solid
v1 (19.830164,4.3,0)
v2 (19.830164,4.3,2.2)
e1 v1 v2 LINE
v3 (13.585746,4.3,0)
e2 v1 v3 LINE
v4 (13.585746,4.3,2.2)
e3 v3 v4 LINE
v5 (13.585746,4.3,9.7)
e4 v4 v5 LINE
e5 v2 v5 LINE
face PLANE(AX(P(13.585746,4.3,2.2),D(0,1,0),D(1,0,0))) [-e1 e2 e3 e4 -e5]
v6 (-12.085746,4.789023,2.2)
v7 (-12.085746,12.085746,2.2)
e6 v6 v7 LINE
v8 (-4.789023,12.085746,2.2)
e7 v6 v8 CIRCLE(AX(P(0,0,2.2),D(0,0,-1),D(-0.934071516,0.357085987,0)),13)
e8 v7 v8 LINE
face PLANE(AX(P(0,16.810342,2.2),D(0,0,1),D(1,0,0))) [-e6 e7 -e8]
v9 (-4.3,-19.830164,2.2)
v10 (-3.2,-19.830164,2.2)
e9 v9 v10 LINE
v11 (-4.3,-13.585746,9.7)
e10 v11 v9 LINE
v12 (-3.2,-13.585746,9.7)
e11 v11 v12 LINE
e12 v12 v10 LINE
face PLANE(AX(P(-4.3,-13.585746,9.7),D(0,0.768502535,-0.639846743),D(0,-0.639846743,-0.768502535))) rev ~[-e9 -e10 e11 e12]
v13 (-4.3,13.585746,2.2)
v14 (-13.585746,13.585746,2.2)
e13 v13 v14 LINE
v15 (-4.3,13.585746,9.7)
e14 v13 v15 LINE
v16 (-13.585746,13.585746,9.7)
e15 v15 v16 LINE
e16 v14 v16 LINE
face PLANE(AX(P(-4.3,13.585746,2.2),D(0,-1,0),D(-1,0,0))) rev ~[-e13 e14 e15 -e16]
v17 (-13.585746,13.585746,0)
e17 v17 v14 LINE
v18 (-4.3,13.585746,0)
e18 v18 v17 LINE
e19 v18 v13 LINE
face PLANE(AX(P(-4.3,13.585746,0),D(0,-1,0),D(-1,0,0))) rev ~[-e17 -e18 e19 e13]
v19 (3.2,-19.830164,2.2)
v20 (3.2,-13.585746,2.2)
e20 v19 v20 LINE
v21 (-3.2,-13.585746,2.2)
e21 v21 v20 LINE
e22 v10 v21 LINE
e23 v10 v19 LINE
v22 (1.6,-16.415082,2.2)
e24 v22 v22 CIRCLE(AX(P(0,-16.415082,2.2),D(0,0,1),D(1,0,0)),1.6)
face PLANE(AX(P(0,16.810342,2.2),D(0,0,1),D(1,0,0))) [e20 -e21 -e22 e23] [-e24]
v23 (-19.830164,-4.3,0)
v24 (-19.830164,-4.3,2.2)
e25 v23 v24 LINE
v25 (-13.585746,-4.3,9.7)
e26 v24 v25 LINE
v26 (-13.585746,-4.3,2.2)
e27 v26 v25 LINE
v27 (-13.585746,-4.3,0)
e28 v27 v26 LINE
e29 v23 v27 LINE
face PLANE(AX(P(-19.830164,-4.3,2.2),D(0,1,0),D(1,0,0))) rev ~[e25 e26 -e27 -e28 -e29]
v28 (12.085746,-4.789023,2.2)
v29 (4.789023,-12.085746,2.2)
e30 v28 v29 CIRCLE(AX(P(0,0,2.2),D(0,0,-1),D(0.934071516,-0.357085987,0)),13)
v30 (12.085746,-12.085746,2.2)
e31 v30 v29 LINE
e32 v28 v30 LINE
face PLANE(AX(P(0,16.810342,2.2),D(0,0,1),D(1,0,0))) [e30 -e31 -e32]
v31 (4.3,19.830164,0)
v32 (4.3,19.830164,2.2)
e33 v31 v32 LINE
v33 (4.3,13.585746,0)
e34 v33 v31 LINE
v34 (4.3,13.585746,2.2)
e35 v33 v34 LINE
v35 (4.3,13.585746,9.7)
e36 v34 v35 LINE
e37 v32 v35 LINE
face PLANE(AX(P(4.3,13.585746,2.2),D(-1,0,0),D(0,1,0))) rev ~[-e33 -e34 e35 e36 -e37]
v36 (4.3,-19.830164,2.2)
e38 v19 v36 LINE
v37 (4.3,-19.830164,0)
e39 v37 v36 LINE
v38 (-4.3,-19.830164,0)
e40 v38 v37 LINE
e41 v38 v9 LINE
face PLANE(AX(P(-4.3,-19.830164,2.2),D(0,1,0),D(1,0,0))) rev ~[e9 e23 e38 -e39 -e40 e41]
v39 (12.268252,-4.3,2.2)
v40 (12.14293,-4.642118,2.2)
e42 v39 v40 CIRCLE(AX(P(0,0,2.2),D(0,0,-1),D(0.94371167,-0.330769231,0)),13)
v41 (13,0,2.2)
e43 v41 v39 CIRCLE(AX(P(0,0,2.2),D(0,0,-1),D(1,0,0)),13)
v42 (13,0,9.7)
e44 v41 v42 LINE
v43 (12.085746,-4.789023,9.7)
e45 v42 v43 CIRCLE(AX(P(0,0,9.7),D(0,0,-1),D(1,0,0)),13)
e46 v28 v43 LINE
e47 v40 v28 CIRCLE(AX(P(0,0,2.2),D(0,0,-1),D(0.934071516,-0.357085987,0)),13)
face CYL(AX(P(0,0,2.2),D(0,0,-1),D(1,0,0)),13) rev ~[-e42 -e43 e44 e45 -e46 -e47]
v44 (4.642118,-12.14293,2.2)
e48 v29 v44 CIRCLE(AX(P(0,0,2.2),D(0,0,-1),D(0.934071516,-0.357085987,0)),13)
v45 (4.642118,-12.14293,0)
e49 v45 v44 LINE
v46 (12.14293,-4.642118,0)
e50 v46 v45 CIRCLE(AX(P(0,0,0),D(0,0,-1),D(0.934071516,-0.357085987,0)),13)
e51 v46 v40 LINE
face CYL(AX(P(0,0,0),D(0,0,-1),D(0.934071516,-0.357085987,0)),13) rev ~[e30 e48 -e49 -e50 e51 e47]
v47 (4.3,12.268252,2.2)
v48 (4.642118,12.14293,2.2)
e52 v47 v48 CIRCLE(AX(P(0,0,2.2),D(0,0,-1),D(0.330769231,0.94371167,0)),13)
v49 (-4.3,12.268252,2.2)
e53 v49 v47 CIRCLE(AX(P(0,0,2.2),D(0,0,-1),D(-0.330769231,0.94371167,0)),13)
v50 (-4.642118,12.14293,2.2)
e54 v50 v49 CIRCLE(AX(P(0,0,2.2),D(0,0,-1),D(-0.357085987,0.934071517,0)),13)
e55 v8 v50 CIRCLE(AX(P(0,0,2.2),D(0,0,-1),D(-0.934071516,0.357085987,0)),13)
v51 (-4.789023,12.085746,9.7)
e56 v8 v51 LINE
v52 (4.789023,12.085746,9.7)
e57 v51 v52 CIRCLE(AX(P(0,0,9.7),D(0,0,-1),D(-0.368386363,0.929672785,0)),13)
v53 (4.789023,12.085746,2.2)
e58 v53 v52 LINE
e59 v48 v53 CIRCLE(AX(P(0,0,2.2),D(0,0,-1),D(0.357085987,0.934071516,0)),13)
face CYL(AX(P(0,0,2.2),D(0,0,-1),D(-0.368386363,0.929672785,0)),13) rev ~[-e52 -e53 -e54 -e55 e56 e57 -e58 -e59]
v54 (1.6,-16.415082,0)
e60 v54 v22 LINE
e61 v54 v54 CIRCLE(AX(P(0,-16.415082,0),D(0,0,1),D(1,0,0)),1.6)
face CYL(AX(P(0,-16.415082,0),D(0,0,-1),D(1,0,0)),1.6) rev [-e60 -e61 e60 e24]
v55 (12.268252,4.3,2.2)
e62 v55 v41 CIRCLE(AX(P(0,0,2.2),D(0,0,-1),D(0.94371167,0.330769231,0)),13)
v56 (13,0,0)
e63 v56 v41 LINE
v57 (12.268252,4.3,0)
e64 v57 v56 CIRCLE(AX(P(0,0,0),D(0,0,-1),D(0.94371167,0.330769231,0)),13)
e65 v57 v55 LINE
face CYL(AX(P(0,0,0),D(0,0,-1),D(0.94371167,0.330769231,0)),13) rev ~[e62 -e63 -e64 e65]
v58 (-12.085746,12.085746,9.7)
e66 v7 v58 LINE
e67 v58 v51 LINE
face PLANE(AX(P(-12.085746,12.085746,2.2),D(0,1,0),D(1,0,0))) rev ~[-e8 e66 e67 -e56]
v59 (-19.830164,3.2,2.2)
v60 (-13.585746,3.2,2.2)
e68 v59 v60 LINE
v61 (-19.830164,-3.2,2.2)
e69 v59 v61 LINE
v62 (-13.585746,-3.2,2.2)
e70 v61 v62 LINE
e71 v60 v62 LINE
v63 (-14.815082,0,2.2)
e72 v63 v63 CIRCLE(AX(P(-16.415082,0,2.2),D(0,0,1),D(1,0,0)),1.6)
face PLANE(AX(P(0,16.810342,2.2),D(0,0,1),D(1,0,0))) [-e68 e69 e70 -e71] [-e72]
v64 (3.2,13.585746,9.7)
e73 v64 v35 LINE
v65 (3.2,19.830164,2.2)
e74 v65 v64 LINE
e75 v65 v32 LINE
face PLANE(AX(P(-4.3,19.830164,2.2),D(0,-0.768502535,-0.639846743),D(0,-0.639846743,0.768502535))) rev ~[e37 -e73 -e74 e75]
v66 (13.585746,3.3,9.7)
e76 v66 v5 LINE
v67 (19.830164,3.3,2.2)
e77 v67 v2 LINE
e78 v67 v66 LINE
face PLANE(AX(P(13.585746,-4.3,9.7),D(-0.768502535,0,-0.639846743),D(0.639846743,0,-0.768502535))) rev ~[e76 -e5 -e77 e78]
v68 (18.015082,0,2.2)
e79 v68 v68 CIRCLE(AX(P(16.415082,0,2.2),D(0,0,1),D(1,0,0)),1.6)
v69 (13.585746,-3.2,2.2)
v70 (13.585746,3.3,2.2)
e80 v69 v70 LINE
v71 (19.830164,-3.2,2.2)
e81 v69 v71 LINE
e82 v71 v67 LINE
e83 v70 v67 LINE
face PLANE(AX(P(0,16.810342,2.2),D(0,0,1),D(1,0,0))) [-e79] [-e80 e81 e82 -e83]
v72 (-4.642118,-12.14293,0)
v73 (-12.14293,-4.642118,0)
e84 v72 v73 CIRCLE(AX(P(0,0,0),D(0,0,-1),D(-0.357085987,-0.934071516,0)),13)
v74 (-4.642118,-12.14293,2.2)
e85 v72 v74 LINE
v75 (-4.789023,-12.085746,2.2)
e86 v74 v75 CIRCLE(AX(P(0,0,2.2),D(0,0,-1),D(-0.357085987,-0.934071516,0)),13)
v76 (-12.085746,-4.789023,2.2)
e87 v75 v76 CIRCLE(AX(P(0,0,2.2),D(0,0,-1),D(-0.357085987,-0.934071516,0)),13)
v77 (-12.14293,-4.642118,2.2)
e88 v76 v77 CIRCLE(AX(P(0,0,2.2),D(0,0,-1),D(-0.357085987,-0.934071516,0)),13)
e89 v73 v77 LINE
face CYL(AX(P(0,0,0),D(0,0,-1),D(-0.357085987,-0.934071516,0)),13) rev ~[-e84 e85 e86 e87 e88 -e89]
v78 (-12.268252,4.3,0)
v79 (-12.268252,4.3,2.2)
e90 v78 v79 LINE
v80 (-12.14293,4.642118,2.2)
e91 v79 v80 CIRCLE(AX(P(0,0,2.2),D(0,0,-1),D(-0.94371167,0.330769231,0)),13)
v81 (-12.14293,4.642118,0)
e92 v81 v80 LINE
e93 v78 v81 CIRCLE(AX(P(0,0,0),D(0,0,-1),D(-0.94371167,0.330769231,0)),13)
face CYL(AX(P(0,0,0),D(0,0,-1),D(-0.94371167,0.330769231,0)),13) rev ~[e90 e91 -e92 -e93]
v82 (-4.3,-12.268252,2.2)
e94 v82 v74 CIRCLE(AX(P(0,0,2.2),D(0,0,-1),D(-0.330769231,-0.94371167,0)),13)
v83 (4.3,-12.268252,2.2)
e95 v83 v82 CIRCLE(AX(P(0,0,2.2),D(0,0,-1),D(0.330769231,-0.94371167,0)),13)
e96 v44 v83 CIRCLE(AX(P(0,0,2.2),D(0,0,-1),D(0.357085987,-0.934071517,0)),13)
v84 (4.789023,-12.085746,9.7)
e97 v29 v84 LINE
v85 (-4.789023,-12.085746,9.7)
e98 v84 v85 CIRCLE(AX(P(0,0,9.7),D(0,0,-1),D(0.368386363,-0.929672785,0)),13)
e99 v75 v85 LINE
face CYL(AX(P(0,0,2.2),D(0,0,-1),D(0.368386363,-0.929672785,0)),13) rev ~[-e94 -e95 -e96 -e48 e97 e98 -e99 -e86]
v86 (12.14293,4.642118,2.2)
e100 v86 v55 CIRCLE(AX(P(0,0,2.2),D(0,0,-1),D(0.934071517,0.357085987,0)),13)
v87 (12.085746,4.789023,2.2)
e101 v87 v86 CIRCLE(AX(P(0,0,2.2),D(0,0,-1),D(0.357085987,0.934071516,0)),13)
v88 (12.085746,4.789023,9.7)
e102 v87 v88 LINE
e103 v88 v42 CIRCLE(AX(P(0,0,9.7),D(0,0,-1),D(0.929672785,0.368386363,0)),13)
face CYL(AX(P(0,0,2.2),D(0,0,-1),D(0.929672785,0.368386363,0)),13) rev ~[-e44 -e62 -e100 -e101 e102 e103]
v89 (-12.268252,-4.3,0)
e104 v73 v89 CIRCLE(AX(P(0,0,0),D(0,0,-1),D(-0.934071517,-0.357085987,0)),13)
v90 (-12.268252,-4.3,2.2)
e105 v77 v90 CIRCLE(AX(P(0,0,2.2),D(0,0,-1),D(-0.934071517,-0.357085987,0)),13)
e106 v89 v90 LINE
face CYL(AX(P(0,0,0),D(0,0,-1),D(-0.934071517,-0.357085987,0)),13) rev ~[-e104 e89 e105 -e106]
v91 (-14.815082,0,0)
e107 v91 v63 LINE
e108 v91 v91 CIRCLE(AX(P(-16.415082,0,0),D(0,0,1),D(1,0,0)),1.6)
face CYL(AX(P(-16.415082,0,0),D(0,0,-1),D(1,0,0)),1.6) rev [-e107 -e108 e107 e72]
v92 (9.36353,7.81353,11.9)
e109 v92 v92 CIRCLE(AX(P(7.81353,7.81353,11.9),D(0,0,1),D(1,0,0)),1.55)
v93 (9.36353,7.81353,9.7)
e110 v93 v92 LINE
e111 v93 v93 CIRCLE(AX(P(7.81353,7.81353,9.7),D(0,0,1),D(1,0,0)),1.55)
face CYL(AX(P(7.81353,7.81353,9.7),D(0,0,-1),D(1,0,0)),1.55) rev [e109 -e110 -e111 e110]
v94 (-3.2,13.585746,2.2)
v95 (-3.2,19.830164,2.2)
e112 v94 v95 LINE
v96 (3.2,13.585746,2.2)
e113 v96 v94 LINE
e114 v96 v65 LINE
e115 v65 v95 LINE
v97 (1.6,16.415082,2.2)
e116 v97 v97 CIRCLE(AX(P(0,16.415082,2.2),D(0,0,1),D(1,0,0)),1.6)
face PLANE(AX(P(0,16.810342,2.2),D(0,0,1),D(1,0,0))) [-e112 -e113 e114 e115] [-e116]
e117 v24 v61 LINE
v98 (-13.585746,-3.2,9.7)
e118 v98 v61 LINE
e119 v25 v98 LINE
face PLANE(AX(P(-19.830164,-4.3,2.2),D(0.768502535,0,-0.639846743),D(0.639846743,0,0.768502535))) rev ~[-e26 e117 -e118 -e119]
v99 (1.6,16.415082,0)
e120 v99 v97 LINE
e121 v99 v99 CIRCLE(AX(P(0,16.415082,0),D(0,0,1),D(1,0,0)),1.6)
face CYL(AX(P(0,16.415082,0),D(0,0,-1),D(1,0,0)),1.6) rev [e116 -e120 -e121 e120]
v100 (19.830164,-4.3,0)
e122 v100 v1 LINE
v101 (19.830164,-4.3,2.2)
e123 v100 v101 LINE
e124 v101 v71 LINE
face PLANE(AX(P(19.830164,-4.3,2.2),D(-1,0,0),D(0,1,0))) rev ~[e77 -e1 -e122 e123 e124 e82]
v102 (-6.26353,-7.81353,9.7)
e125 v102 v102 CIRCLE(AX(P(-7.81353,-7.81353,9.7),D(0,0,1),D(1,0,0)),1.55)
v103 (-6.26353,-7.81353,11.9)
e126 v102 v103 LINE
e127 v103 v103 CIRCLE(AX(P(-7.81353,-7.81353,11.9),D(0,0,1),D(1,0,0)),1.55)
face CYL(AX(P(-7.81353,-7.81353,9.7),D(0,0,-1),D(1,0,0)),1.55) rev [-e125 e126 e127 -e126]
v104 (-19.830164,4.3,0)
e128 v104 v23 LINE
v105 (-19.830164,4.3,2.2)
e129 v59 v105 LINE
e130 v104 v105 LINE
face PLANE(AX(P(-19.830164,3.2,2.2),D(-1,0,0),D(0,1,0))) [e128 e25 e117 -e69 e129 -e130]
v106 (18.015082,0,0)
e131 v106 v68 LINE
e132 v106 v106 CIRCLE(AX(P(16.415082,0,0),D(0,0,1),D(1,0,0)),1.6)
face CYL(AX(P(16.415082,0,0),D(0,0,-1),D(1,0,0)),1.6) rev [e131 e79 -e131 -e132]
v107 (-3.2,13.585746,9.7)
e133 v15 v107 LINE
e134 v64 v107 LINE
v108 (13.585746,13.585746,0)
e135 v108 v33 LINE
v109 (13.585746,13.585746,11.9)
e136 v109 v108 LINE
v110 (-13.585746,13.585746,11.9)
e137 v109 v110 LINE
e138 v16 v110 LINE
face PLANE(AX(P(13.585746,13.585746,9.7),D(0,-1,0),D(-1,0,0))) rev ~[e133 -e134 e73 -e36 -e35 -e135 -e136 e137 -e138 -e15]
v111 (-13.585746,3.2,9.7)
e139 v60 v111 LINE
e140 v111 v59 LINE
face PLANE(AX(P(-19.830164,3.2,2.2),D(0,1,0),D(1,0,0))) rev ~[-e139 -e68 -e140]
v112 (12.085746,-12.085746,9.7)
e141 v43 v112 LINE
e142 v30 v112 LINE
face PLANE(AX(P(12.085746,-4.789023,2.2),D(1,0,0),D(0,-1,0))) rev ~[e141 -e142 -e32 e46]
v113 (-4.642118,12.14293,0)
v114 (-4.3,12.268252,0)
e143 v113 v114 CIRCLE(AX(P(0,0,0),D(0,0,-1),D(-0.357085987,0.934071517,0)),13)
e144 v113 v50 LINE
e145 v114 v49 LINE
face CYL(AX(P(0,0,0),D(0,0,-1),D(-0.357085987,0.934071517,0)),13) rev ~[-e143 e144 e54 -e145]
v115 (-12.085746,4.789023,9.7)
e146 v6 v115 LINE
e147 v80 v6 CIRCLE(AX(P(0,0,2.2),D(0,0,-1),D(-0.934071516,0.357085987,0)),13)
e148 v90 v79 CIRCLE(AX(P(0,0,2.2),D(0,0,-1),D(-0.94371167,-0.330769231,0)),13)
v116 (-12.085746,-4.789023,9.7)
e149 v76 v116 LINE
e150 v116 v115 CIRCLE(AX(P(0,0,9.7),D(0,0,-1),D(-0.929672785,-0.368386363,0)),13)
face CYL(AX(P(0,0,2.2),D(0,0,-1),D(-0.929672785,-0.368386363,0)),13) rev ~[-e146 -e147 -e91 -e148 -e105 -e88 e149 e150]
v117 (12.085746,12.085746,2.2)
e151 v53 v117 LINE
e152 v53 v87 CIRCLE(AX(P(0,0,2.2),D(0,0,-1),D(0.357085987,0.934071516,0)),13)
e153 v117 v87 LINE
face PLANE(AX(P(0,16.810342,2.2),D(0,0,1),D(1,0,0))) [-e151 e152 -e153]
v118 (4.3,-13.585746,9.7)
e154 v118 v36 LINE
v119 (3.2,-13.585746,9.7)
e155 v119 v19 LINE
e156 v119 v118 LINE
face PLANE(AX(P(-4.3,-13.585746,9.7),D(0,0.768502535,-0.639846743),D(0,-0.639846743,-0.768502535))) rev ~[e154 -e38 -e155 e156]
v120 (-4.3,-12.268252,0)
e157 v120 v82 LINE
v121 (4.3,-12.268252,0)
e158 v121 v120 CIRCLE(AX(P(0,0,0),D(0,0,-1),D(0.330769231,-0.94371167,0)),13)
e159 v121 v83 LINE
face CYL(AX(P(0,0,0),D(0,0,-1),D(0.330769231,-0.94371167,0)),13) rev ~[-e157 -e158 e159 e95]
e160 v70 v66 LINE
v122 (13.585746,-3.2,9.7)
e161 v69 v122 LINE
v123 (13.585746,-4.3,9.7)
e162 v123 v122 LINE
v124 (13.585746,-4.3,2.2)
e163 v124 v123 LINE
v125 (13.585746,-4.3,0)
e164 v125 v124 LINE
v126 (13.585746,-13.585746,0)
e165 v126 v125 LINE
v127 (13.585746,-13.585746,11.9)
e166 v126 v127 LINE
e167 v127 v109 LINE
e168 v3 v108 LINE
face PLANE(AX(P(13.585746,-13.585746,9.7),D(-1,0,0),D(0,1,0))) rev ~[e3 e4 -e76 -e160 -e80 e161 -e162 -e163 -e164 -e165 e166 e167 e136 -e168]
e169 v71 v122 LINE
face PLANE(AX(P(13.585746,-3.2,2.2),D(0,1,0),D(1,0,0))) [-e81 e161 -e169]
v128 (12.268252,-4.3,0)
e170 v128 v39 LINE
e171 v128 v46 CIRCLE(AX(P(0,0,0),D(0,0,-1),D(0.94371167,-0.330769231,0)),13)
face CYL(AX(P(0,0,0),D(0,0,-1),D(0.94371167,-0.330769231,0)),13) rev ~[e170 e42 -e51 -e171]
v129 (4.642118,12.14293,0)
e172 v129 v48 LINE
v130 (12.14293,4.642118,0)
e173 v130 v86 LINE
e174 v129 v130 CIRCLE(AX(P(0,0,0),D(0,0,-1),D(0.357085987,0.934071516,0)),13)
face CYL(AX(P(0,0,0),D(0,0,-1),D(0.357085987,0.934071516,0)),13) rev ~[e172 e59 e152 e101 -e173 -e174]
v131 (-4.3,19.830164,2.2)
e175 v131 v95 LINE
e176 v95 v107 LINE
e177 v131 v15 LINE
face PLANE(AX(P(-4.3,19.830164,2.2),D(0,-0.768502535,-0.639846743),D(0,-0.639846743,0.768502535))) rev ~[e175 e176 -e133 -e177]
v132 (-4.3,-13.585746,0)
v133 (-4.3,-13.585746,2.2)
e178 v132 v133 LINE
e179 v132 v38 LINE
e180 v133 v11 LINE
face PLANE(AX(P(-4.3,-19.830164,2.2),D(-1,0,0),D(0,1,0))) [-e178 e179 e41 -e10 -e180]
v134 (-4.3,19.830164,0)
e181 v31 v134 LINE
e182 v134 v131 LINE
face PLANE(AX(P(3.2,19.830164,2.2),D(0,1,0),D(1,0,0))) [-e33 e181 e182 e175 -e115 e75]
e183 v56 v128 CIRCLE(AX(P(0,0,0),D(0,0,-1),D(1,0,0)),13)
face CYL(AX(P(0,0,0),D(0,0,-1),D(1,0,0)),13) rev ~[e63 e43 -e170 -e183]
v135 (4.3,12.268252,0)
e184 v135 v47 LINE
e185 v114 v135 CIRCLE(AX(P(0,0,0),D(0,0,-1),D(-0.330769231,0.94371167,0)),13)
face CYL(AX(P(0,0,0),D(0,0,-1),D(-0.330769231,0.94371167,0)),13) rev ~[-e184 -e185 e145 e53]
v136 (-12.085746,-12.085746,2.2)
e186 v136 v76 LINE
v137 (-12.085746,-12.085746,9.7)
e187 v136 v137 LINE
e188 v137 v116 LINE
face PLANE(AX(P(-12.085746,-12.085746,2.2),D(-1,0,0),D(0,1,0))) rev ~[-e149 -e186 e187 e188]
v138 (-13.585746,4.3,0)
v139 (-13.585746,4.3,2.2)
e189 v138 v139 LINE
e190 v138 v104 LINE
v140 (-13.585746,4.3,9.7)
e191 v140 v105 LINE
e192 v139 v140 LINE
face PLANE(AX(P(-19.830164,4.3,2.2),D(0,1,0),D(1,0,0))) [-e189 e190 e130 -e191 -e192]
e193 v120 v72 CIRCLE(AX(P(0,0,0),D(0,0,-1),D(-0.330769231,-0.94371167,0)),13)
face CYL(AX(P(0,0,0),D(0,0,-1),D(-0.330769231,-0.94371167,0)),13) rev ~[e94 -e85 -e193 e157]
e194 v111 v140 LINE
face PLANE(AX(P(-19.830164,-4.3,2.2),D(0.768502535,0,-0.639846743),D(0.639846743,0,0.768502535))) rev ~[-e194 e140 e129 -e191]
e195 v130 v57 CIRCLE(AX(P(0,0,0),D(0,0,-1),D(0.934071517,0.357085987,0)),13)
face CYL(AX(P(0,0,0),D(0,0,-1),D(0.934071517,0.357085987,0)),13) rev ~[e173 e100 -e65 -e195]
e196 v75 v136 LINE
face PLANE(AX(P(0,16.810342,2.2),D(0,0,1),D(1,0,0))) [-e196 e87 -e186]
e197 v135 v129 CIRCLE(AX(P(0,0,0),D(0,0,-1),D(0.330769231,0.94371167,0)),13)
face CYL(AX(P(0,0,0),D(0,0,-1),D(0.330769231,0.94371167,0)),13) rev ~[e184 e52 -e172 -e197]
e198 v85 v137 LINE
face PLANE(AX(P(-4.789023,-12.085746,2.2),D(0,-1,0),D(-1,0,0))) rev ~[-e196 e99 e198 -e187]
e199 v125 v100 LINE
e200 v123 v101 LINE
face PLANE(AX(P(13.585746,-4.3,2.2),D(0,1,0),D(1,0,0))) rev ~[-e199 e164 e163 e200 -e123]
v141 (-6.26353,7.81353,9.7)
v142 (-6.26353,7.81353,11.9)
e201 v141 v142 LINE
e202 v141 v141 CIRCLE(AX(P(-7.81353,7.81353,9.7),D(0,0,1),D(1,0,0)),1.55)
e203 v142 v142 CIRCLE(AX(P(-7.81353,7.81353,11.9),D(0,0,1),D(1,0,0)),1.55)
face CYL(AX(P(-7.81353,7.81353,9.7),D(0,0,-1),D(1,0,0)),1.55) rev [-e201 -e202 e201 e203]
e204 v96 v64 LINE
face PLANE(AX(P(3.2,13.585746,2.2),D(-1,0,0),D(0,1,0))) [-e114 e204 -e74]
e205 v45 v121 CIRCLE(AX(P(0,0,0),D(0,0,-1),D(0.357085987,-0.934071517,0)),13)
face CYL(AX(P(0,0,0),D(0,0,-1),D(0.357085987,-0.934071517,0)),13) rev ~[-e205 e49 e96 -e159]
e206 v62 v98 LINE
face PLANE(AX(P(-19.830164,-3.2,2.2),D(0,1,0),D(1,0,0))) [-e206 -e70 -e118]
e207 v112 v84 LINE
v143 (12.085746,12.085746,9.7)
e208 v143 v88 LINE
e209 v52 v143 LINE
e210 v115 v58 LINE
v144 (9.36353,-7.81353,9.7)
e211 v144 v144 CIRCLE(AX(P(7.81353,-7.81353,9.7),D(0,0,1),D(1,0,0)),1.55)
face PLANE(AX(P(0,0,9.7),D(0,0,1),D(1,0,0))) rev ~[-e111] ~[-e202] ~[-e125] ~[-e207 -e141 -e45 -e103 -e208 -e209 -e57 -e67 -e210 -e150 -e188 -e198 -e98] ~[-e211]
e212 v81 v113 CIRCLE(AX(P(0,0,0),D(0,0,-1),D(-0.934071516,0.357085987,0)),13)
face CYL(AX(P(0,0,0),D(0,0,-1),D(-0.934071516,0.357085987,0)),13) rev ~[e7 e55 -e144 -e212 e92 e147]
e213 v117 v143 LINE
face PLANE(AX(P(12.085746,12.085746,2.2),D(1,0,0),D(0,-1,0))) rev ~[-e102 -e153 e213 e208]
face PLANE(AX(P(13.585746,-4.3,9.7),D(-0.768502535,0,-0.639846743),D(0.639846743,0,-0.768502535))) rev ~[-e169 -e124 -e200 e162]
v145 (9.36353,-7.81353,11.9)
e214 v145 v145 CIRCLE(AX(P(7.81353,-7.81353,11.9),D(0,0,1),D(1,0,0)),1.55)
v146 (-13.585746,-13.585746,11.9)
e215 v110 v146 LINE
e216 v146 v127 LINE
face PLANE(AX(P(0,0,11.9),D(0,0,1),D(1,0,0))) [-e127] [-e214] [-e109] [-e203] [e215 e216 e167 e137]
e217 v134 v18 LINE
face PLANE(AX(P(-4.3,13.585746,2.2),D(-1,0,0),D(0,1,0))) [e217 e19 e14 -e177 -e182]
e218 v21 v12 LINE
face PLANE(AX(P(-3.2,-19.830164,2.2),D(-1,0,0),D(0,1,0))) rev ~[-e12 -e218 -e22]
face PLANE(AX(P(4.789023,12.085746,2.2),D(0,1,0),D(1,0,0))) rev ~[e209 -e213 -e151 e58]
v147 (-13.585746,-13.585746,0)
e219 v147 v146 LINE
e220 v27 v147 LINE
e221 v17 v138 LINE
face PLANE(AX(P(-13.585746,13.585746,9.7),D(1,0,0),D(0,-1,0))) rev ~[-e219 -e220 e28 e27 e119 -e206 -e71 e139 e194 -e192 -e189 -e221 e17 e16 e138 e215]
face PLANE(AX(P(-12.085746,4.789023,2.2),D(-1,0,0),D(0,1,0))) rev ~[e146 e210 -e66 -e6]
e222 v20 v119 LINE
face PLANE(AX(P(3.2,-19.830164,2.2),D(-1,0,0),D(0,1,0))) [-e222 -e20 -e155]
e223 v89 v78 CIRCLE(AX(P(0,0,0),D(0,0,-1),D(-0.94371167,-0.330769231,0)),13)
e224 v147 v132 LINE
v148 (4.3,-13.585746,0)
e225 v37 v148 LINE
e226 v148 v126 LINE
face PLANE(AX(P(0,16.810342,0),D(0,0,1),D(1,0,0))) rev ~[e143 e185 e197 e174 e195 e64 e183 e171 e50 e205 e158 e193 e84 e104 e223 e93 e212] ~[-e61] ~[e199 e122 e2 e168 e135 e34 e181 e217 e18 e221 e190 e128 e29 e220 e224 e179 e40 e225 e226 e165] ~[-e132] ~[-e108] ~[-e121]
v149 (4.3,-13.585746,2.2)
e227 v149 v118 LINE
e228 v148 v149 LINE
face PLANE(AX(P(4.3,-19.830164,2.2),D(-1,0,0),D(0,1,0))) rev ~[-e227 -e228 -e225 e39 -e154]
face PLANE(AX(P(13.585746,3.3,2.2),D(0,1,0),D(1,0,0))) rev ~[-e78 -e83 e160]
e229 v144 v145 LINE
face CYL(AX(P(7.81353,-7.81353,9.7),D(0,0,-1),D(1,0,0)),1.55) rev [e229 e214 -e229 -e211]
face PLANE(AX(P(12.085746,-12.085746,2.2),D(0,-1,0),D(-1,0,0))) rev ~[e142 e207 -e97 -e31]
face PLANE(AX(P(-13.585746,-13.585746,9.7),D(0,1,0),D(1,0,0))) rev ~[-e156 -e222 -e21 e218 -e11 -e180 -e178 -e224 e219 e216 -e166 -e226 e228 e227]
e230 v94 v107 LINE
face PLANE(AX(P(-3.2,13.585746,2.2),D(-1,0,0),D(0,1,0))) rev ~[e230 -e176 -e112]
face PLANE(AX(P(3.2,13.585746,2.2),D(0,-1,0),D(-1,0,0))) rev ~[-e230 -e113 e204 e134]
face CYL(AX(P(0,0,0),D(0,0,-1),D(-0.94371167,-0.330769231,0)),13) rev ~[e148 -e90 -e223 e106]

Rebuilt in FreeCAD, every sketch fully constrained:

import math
import FreeCAD as App
import Part
import Sketcher

doc = App.newDocument("Part")
body = doc.addObject("PartDesign::Body", "Body")

sketch1 = body.newObject("Sketcher::SketchObject", "Sketch")
sketch1.AttachmentSupport = (doc.getObject("XY_Plane"), [""])
sketch1.MapMode = "FlatFace"
sketch1.addGeometry([
    Part.LineSegment(App.Vector(4.3, -19.83, 0), App.Vector(4.3, -13.59, 0)),
    Part.LineSegment(App.Vector(4.3, -13.59, 0), App.Vector(13.59, -13.59, 0)),
    Part.LineSegment(App.Vector(13.59, -13.59, 0), App.Vector(13.59, -4.3, 0)),
    Part.LineSegment(App.Vector(13.59, -4.3, 0), App.Vector(19.83, -4.3, 0)),
    Part.LineSegment(App.Vector(19.83, -4.3, 0), App.Vector(19.83, 4.3, 0)),
    Part.LineSegment(App.Vector(19.83, 4.3, 0), App.Vector(13.59, 4.3, 0)),
    Part.LineSegment(App.Vector(13.59, 4.3, 0), App.Vector(13.59, 13.59, 0)),
    Part.LineSegment(App.Vector(13.59, 13.59, 0), App.Vector(4.3, 13.59, 0)),
    Part.LineSegment(App.Vector(4.3, 13.59, 0), App.Vector(4.3, 19.83, 0)),
    Part.LineSegment(App.Vector(4.3, 19.83, 0), App.Vector(-4.3, 19.83, 0)),
    Part.LineSegment(App.Vector(-4.3, 19.83, 0), App.Vector(-4.3, 13.59, 0)),
    Part.LineSegment(App.Vector(-4.3, 13.59, 0), App.Vector(-13.59, 13.59, 0)),
    Part.LineSegment(App.Vector(-13.59, 13.59, 0), App.Vector(-13.59, 4.3, 0)),
    Part.LineSegment(App.Vector(-13.59, 4.3, 0), App.Vector(-19.83, 4.3, 0)),
    Part.LineSegment(App.Vector(-19.83, 4.3, 0), App.Vector(-19.83, -4.3, 0)),
    Part.LineSegment(App.Vector(-19.83, -4.3, 0), App.Vector(-13.59, -4.3, 0)),
    Part.LineSegment(App.Vector(-13.59, -4.3, 0), App.Vector(-13.59, -13.59, 0)),
    Part.LineSegment(App.Vector(-13.59, -13.59, 0), App.Vector(-4.3, -13.59, 0)),
    Part.LineSegment(App.Vector(-4.3, -13.59, 0), App.Vector(-4.3, -19.83, 0)),
    Part.LineSegment(App.Vector(-4.3, -19.83, 0), App.Vector(4.3, -19.83, 0)),
    Part.Circle(App.Vector(0, -16.42, 0), App.Vector(0, 0, 1), 1.6),
    Part.ArcOfCircle(Part.Circle(App.Vector(0, 0, 0), App.Vector(0, 0, 1), 13), math.radians(-69), math.radians(-21)),
    Part.ArcOfCircle(Part.Circle(App.Vector(0, 0, 0), App.Vector(0, 0, 1), 13), math.radians(-70.68), math.radians(-69.08)),
    Part.ArcOfCircle(Part.Circle(App.Vector(0, 0, 0), App.Vector(0, 0, 1), 13), math.radians(-109), math.radians(-71)),
    Part.ArcOfCircle(Part.Circle(App.Vector(0, 0, 0), App.Vector(0, 0, 1), 13), math.radians(-110.92), math.radians(-109.32)),
    Part.ArcOfCircle(Part.Circle(App.Vector(0, 0, 0), App.Vector(0, 0, 1), 13), math.radians(-159), math.radians(-111)),
    Part.ArcOfCircle(Part.Circle(App.Vector(0, 0, 0), App.Vector(0, 0, 1), 13), math.radians(-160.68), math.radians(-159.08)),
    Part.ArcOfCircle(Part.Circle(App.Vector(0, 0, 0), App.Vector(0, 0, 1), 13), math.radians(161), math.radians(199)),
    Part.ArcOfCircle(Part.Circle(App.Vector(0, 0, 0), App.Vector(0, 0, 1), 13), math.radians(159.08), math.radians(160.68)),
    Part.ArcOfCircle(Part.Circle(App.Vector(0, 0, 0), App.Vector(0, 0, 1), 13), math.radians(111), math.radians(159)),
    Part.ArcOfCircle(Part.Circle(App.Vector(0, 0, 0), App.Vector(0, 0, 1), 13), math.radians(109.32), math.radians(110.92)),
    Part.ArcOfCircle(Part.Circle(App.Vector(0, 0, 0), App.Vector(0, 0, 1), 13), math.radians(71), math.radians(109)),
    Part.ArcOfCircle(Part.Circle(App.Vector(0, 0, 0), App.Vector(0, 0, 1), 13), math.radians(69.08), math.radians(70.68)),
    Part.ArcOfCircle(Part.Circle(App.Vector(0, 0, 0), App.Vector(0, 0, 1), 13), math.radians(21), math.radians(69)),
    Part.ArcOfCircle(Part.Circle(App.Vector(0, 0, 0), App.Vector(0, 0, 1), 13), math.radians(19.32), math.radians(20.92)),
    Part.ArcOfCircle(Part.Circle(App.Vector(0, 0, 0), App.Vector(0, 0, 1), 13), math.radians(0), math.radians(19.32)),
    Part.ArcOfCircle(Part.Circle(App.Vector(0, 0, 0), App.Vector(0, 0, 1), 13), math.radians(-19.32), math.radians(0)),
    Part.ArcOfCircle(Part.Circle(App.Vector(0, 0, 0), App.Vector(0, 0, 1), 13), math.radians(-20.92), math.radians(-19.32)),
    Part.Circle(App.Vector(-16.42, 0, 0), App.Vector(0, 0, 1), 1.6),
    Part.Circle(App.Vector(16.42, 0, 0), App.Vector(0, 0, 1), 1.6),
    Part.Circle(App.Vector(0, 16.42, 0), App.Vector(0, 0, 1), 1.6),
], False)
sketch1.addConstraint([
    Sketcher.Constraint("Coincident", 0, 2, 1, 1),
    Sketcher.Constraint("Coincident", 1, 2, 2, 1),
    Sketcher.Constraint("Coincident", 2, 2, 3, 1),
    Sketcher.Constraint("Coincident", 3, 2, 4, 1),
    Sketcher.Constraint("Coincident", 4, 2, 5, 1),
    Sketcher.Constraint("Coincident", 5, 2, 6, 1),
    Sketcher.Constraint("Coincident", 6, 2, 7, 1),
    Sketcher.Constraint("Coincident", 7, 2, 8, 1),
    Sketcher.Constraint("Coincident", 8, 2, 9, 1),
    Sketcher.Constraint("Coincident", 9, 2, 10, 1),
    Sketcher.Constraint("Coincident", 10, 2, 11, 1),
    Sketcher.Constraint("Coincident", 11, 2, 12, 1),
    Sketcher.Constraint("Coincident", 12, 2, 13, 1),
    Sketcher.Constraint("Coincident", 13, 2, 14, 1),
    Sketcher.Constraint("Coincident", 14, 2, 15, 1),
    Sketcher.Constraint("Coincident", 15, 2, 16, 1),
    Sketcher.Constraint("Coincident", 16, 2, 17, 1),
    Sketcher.Constraint("Coincident", 17, 2, 18, 1),
    Sketcher.Constraint("Coincident", 18, 2, 19, 1),
    Sketcher.Constraint("Coincident", 19, 2, 0, 1),
    Sketcher.Constraint("Tangent", 21, 1, 22, 2),
    Sketcher.Constraint("Tangent", 22, 1, 23, 2),
    Sketcher.Constraint("Tangent", 23, 1, 24, 2),
    Sketcher.Constraint("Tangent", 24, 1, 25, 2),
    Sketcher.Constraint("Tangent", 25, 1, 26, 2),
    Sketcher.Constraint("Tangent", 26, 1, 27, 2),
    Sketcher.Constraint("Tangent", 27, 1, 28, 2),
    Sketcher.Constraint("Tangent", 28, 1, 29, 2),
    Sketcher.Constraint("Tangent", 29, 1, 30, 2),
    Sketcher.Constraint("Tangent", 30, 1, 31, 2),
    Sketcher.Constraint("Tangent", 31, 1, 32, 2),
    Sketcher.Constraint("Tangent", 32, 1, 33, 2),
    Sketcher.Constraint("Tangent", 33, 1, 34, 2),
    Sketcher.Constraint("Tangent", 34, 1, 35, 2),
    Sketcher.Constraint("Tangent", 35, 1, 36, 2),
    Sketcher.Constraint("Tangent", 36, 1, 37, 2),
    Sketcher.Constraint("Tangent", 37, 1, 21, 2),
    Sketcher.Constraint("Vertical", 0),
    Sketcher.Constraint("Horizontal", 1),
    Sketcher.Constraint("Vertical", 2),
    Sketcher.Constraint("Horizontal", 3),
    Sketcher.Constraint("Vertical", 4),
    Sketcher.Constraint("Horizontal", 5),
    Sketcher.Constraint("Vertical", 6),
    Sketcher.Constraint("Horizontal", 7),
    Sketcher.Constraint("Vertical", 8),
    Sketcher.Constraint("Horizontal", 9),
    Sketcher.Constraint("Vertical", 10),
    Sketcher.Constraint("Horizontal", 11),
    Sketcher.Constraint("Vertical", 12),
    Sketcher.Constraint("Horizontal", 13),
    Sketcher.Constraint("Vertical", 14),
    Sketcher.Constraint("Horizontal", 15),
    Sketcher.Constraint("Vertical", 16),
    Sketcher.Constraint("Horizontal", 17),
    Sketcher.Constraint("Vertical", 18),
    Sketcher.Constraint("Horizontal", 19),
    Sketcher.Constraint("Coincident", 21, 3, -1, 1),
    Sketcher.Constraint("Coincident", 23, 3, -1, 1),
    Sketcher.Constraint("Coincident", 25, 3, -1, 1),
    Sketcher.Constraint("Coincident", 27, 3, -1, 1),
    Sketcher.Constraint("Coincident", 29, 3, -1, 1),
    Sketcher.Constraint("Coincident", 31, 3, -1, 1),
    Sketcher.Constraint("Coincident", 33, 3, -1, 1),
    Sketcher.Constraint("Coincident", 35, 3, -1, 1),
    Sketcher.Constraint("Equal", 20, 38),
    Sketcher.Constraint("Equal", 38, 39),
    Sketcher.Constraint("Equal", 39, 40),
    Sketcher.Constraint("Symmetric", 38, 3, 39, 3, -1, 1),
    Sketcher.Constraint("Symmetric", 20, 3, 40, 3, -1, 1),
    Sketcher.Constraint("Symmetric", 0, 2, 10, 2, -1, 1),
    Sketcher.Constraint("Symmetric", 2, 2, 12, 2, -1, 1),
    Sketcher.Constraint("Symmetric", 4, 2, 14, 2, -1, 1),
    Sketcher.Constraint("Symmetric", 6, 2, 16, 2, -1, 1),
    Sketcher.Constraint("Symmetric", 8, 2, 18, 2, -1, 1),
    Sketcher.Constraint("Symmetric", 7, 2, 10, 2, -2),
    Sketcher.Constraint("Symmetric", 5, 2, 12, 2, -2),
    Sketcher.Constraint("PointOnObject", 20, 3, -2),
    Sketcher.Constraint("PointOnObject", 38, 3, -1),
    Sketcher.Constraint("PointOnObject", 35, 1, -1),
    Sketcher.Constraint("Horizontal", 22, 1, 23, 1),
    Sketcher.Constraint("Horizontal", 21, 1, 24, 1),
    Sketcher.Constraint("Horizontal", 15, 2, 26, 1),
    Sketcher.Constraint("Horizontal", 13, 2, 27, 1),
    Sketcher.Constraint("Horizontal", 30, 1, 31, 1),
    Sketcher.Constraint("Horizontal", 29, 1, 32, 1),
    Sketcher.Constraint("Horizontal", 28, 1, 33, 1),
    Sketcher.Constraint("Horizontal", 27, 1, 34, 1),
    Sketcher.Constraint("Horizontal", 26, 1, 36, 1),
    Sketcher.Constraint("Horizontal", 25, 1, 37, 1),
    Sketcher.Constraint("Vertical", 19, 2, 22, 1),
    Sketcher.Constraint("Vertical", 25, 1, 28, 1),
    Sketcher.Constraint("Vertical", 24, 1, 29, 1),
    Sketcher.Constraint("Vertical", 23, 1, 30, 1),
    Sketcher.Constraint("Equal", 15, 0),
    Sketcher.Constraint("Equal", 17, 2),
    Sketcher.Constraint("Equal", 19, 4),
    Sketcher.Constraint("Radius", 21, 13.0),
    Sketcher.Constraint("Diameter", 20, 3.2),
    Sketcher.Constraint("DistanceX", 9, 2, 9, 1, 8.6),
    Sketcher.Constraint("DistanceX", 1, 1, 1, 2, 9.285746),
    Sketcher.Constraint("DistanceX", 3, 1, 3, 2, 6.244417),
    Sketcher.Constraint("DistanceY", 20, 3, -1, 1, 16.415082),
    Sketcher.Constraint("DistanceX", 38, 3, -1, 1, 16.415082),
    Sketcher.Constraint("DistanceY", 21, 1, -1, 1, 12.14293),
    Sketcher.Constraint("DistanceX", 25, 1, -1, 1, 12.14293),
])
pad1 = body.newObject("PartDesign::Pad", "Pad")
pad1.Profile = sketch1
pad1.Length = 2.2

sketch2 = body.newObject("Sketcher::SketchObject", "Sketch001")
sketch2.AttachmentSupport = (doc.getObject("XY_Plane"), [""])
sketch2.MapMode = "FlatFace"
sketch2.AttachmentOffset = App.Placement(App.Vector(0, 0, 2.2), App.Rotation())
sketch2.addGeometry([
    Part.LineSegment(App.Vector(3.2, 19.8, 0), App.Vector(3.2, 13.6, 0)),
    Part.LineSegment(App.Vector(3.2, 13.6, 0), App.Vector(-3.2, 13.6, 0)),
    Part.LineSegment(App.Vector(-3.2, 13.6, 0), App.Vector(-3.2, 19.8, 0)),
    Part.LineSegment(App.Vector(-3.2, 19.8, 0), App.Vector(-4.3, 19.8, 0)),
    Part.LineSegment(App.Vector(-4.3, 19.8, 0), App.Vector(-4.3, 13.6, 0)),
    Part.LineSegment(App.Vector(-4.3, 13.6, 0), App.Vector(-13.6, 13.6, 0)),
    Part.LineSegment(App.Vector(-13.6, 13.6, 0), App.Vector(-13.6, 4.3, 0)),
    Part.LineSegment(App.Vector(-13.6, 4.3, 0), App.Vector(-19.8, 4.3, 0)),
    Part.LineSegment(App.Vector(-19.8, 4.3, 0), App.Vector(-19.8, 3.2, 0)),
    Part.LineSegment(App.Vector(-19.8, 3.2, 0), App.Vector(-13.6, 3.2, 0)),
    Part.LineSegment(App.Vector(-13.6, 3.2, 0), App.Vector(-13.6, -3.2, 0)),
    Part.LineSegment(App.Vector(-13.6, -3.2, 0), App.Vector(-19.8, -3.2, 0)),
    Part.LineSegment(App.Vector(-19.8, -3.2, 0), App.Vector(-19.8, -4.3, 0)),
    Part.LineSegment(App.Vector(-19.8, -4.3, 0), App.Vector(-13.6, -4.3, 0)),
    Part.LineSegment(App.Vector(-13.6, -4.3, 0), App.Vector(-13.6, -13.6, 0)),
    Part.LineSegment(App.Vector(-13.6, -13.6, 0), App.Vector(-4.3, -13.6, 0)),
    Part.LineSegment(App.Vector(-4.3, -13.6, 0), App.Vector(-4.3, -19.8, 0)),
    Part.LineSegment(App.Vector(-4.3, -19.8, 0), App.Vector(-3.2, -19.8, 0)),
    Part.LineSegment(App.Vector(-3.2, -19.8, 0), App.Vector(-3.2, -13.6, 0)),
    Part.LineSegment(App.Vector(-3.2, -13.6, 0), App.Vector(3.2, -13.6, 0)),
    Part.LineSegment(App.Vector(3.2, -13.6, 0), App.Vector(3.2, -19.8, 0)),
    Part.LineSegment(App.Vector(3.2, -19.8, 0), App.Vector(4.3, -19.8, 0)),
    Part.LineSegment(App.Vector(4.3, -19.8, 0), App.Vector(4.3, -13.6, 0)),
    Part.LineSegment(App.Vector(4.3, -13.6, 0), App.Vector(13.6, -13.6, 0)),
    Part.LineSegment(App.Vector(13.6, -13.6, 0), App.Vector(13.6, -4.3, 0)),
    Part.LineSegment(App.Vector(13.6, -4.3, 0), App.Vector(19.8, -4.3, 0)),
    Part.LineSegment(App.Vector(19.8, -4.3, 0), App.Vector(19.8, -3.2, 0)),
    Part.LineSegment(App.Vector(19.8, -3.2, 0), App.Vector(13.6, -3.2, 0)),
    Part.LineSegment(App.Vector(13.6, -3.2, 0), App.Vector(13.6, 3.3, 0)),
    Part.LineSegment(App.Vector(13.6, 3.3, 0), App.Vector(19.8, 3.3, 0)),
    Part.LineSegment(App.Vector(19.8, 3.3, 0), App.Vector(19.8, 4.3, 0)),
    Part.LineSegment(App.Vector(19.8, 4.3, 0), App.Vector(13.6, 4.3, 0)),
    Part.LineSegment(App.Vector(13.6, 4.3, 0), App.Vector(13.6, 13.6, 0)),
    Part.LineSegment(App.Vector(13.6, 13.6, 0), App.Vector(4.3, 13.6, 0)),
    Part.LineSegment(App.Vector(4.3, 13.6, 0), App.Vector(4.3, 19.8, 0)),
    Part.LineSegment(App.Vector(4.3, 19.8, 0), App.Vector(3.2, 19.8, 0)),
    Part.ArcOfCircle(Part.Circle(App.Vector(0, 0, 0), App.Vector(0, 0, 1), 13), math.radians(158), math.radians(202)),
    Part.LineSegment(App.Vector(-12.1, 4.8, 0), App.Vector(-12.1, 12.1, 0)),
    Part.LineSegment(App.Vector(-12.1, 12.1, 0), App.Vector(-4.8, 12.1, 0)),
    Part.ArcOfCircle(Part.Circle(App.Vector(0, 0, 0), App.Vector(0, 0, 1), 13), math.radians(68), math.radians(112)),
    Part.LineSegment(App.Vector(4.8, 12.1, 0), App.Vector(12.1, 12.1, 0)),
    Part.LineSegment(App.Vector(12.1, 12.1, 0), App.Vector(12.1, 4.8, 0)),
    Part.ArcOfCircle(Part.Circle(App.Vector(0, 0, 0), App.Vector(0, 0, 1), 13), math.radians(0), math.radians(22)),
    Part.ArcOfCircle(Part.Circle(App.Vector(0, 0, 0), App.Vector(0, 0, 1), 13), math.radians(-22), math.radians(0)),
    Part.LineSegment(App.Vector(12.1, -4.8, 0), App.Vector(12.1, -12.1, 0)),
    Part.LineSegment(App.Vector(12.1, -12.1, 0), App.Vector(4.8, -12.1, 0)),
    Part.ArcOfCircle(Part.Circle(App.Vector(0, 0, 0), App.Vector(0, 0, 1), 13), math.radians(-112), math.radians(-68)),
    Part.LineSegment(App.Vector(-4.8, -12.1, 0), App.Vector(-12.1, -12.1, 0)),
    Part.LineSegment(App.Vector(-12.1, -12.1, 0), App.Vector(-12.1, -4.8, 0)),
], False)
sketch2.addConstraint([
    Sketcher.Constraint("Coincident", 0, 2, 1, 1),
    Sketcher.Constraint("Coincident", 1, 2, 2, 1),
    Sketcher.Constraint("Coincident", 2, 2, 3, 1),
    Sketcher.Constraint("Coincident", 3, 2, 4, 1),
    Sketcher.Constraint("Coincident", 4, 2, 5, 1),
    Sketcher.Constraint("Coincident", 5, 2, 6, 1),
    Sketcher.Constraint("Coincident", 6, 2, 7, 1),
    Sketcher.Constraint("Coincident", 7, 2, 8, 1),
    Sketcher.Constraint("Coincident", 8, 2, 9, 1),
    Sketcher.Constraint("Coincident", 9, 2, 10, 1),
    Sketcher.Constraint("Coincident", 10, 2, 11, 1),
    Sketcher.Constraint("Coincident", 11, 2, 12, 1),
    Sketcher.Constraint("Coincident", 12, 2, 13, 1),
    Sketcher.Constraint("Coincident", 13, 2, 14, 1),
    Sketcher.Constraint("Coincident", 14, 2, 15, 1),
    Sketcher.Constraint("Coincident", 15, 2, 16, 1),
    Sketcher.Constraint("Coincident", 16, 2, 17, 1),
    Sketcher.Constraint("Coincident", 17, 2, 18, 1),
    Sketcher.Constraint("Coincident", 18, 2, 19, 1),
    Sketcher.Constraint("Coincident", 19, 2, 20, 1),
    Sketcher.Constraint("Coincident", 20, 2, 21, 1),
    Sketcher.Constraint("Coincident", 21, 2, 22, 1),
    Sketcher.Constraint("Coincident", 22, 2, 23, 1),
    Sketcher.Constraint("Coincident", 23, 2, 24, 1),
    Sketcher.Constraint("Coincident", 24, 2, 25, 1),
    Sketcher.Constraint("Coincident", 25, 2, 26, 1),
    Sketcher.Constraint("Coincident", 26, 2, 27, 1),
    Sketcher.Constraint("Coincident", 27, 2, 28, 1),
    Sketcher.Constraint("Coincident", 28, 2, 29, 1),
    Sketcher.Constraint("Coincident", 29, 2, 30, 1),
    Sketcher.Constraint("Coincident", 30, 2, 31, 1),
    Sketcher.Constraint("Coincident", 31, 2, 32, 1),
    Sketcher.Constraint("Coincident", 32, 2, 33, 1),
    Sketcher.Constraint("Coincident", 33, 2, 34, 1),
    Sketcher.Constraint("Coincident", 34, 2, 35, 1),
    Sketcher.Constraint("Coincident", 35, 2, 0, 1),
    Sketcher.Constraint("Coincident", 36, 1, 37, 1),
    Sketcher.Constraint("Coincident", 37, 2, 38, 1),
    Sketcher.Constraint("Coincident", 38, 2, 39, 2),
    Sketcher.Constraint("Coincident", 39, 1, 40, 1),
    Sketcher.Constraint("Coincident", 40, 2, 41, 1),
    Sketcher.Constraint("Coincident", 41, 2, 42, 2),
    Sketcher.Constraint("Tangent", 42, 1, 43, 2),
    Sketcher.Constraint("Coincident", 43, 1, 44, 1),
    Sketcher.Constraint("Coincident", 44, 2, 45, 1),
    Sketcher.Constraint("Coincident", 45, 2, 46, 2),
    Sketcher.Constraint("Coincident", 46, 1, 47, 1),
    Sketcher.Constraint("Coincident", 47, 2, 48, 1),
    Sketcher.Constraint("Coincident", 48, 2, 36, 2),
    Sketcher.Constraint("Vertical", 0),
    Sketcher.Constraint("Horizontal", 1),
    Sketcher.Constraint("Vertical", 2),
    Sketcher.Constraint("Horizontal", 3),
    Sketcher.Constraint("Vertical", 4),
    Sketcher.Constraint("Horizontal", 5),
    Sketcher.Constraint("Vertical", 6),
    Sketcher.Constraint("Horizontal", 7),
    Sketcher.Constraint("Vertical", 8),
    Sketcher.Constraint("Horizontal", 9),
    Sketcher.Constraint("Vertical", 10),
    Sketcher.Constraint("Horizontal", 11),
    Sketcher.Constraint("Vertical", 12),
    Sketcher.Constraint("Horizontal", 13),
    Sketcher.Constraint("Vertical", 14),
    Sketcher.Constraint("Horizontal", 15),
    Sketcher.Constraint("Vertical", 16),
    Sketcher.Constraint("Horizontal", 17),
    Sketcher.Constraint("Vertical", 18),
    Sketcher.Constraint("Horizontal", 19),
    Sketcher.Constraint("Vertical", 20),
    Sketcher.Constraint("Horizontal", 21),
    Sketcher.Constraint("Vertical", 22),
    Sketcher.Constraint("Horizontal", 23),
    Sketcher.Constraint("Vertical", 24),
    Sketcher.Constraint("Horizontal", 25),
    Sketcher.Constraint("Vertical", 26),
    Sketcher.Constraint("Horizontal", 27),
    Sketcher.Constraint("Vertical", 28),
    Sketcher.Constraint("Horizontal", 29),
    Sketcher.Constraint("Vertical", 30),
    Sketcher.Constraint("Horizontal", 31),
    Sketcher.Constraint("Vertical", 32),
    Sketcher.Constraint("Horizontal", 33),
    Sketcher.Constraint("Vertical", 34),
    Sketcher.Constraint("Horizontal", 35),
    Sketcher.Constraint("Vertical", 37),
    Sketcher.Constraint("Horizontal", 38),
    Sketcher.Constraint("Horizontal", 40),
    Sketcher.Constraint("Vertical", 41),
    Sketcher.Constraint("Vertical", 44),
    Sketcher.Constraint("Horizontal", 45),
    Sketcher.Constraint("Horizontal", 47),
    Sketcher.Constraint("Vertical", 48),
    Sketcher.Constraint("Coincident", 36, 3, -1, 1),
    Sketcher.Constraint("Coincident", 39, 3, -1, 1),
    Sketcher.Constraint("Coincident", 42, 3, -1, 1),
    Sketcher.Constraint("Coincident", 46, 3, -1, 1),
    Sketcher.Constraint("Equal", 36, 39),
    Sketcher.Constraint("Equal", 39, 42),
    Sketcher.Constraint("Equal", 42, 43),
    Sketcher.Constraint("Equal", 43, 46),
    Sketcher.Constraint("Symmetric", 0, 2, 18, 2, -1, 1),
    Sketcher.Constraint("Symmetric", 2, 2, 20, 2, -1, 1),
    Sketcher.Constraint("Symmetric", 4, 2, 22, 2, -1, 1),
    Sketcher.Constraint("Symmetric", 6, 2, 24, 2, -1, 1),
    Sketcher.Constraint("Symmetric", 8, 2, 26, 2, -1, 1),
    Sketcher.Constraint("Symmetric", 12, 2, 30, 2, -1, 1),
    Sketcher.Constraint("Symmetric", 14, 2, 32, 2, -1, 1),
    Sketcher.Constraint("Symmetric", 16, 2, 34, 2, -1, 1),
    Sketcher.Constraint("Symmetric", 37, 2, 44, 2, -1, 1),
    Sketcher.Constraint("Symmetric", 40, 2, 47, 2, -1, 1),
    Sketcher.Constraint("Symmetric", 17, 2, 20, 2, -2),
    Sketcher.Constraint("Symmetric", 15, 2, 22, 2, -2),
    Sketcher.Constraint("Symmetric", 13, 2, 24, 2, -2),
    Sketcher.Constraint("Symmetric", 11, 2, 26, 2, -2),
    Sketcher.Constraint("Symmetric", 37, 2, 40, 2, -2),
    Sketcher.Constraint("PointOnObject", 42, 1, -1),
    Sketcher.Constraint("Horizontal", 1, 2, 4, 2),
    Sketcher.Constraint("Vertical", 6, 2, 9, 2),
    Sketcher.Constraint("Vertical", 24, 2, 27, 2),
    Sketcher.Constraint("Equal", 31, 0),
    Sketcher.Constraint("Equal", 33, 6),
    Sketcher.Constraint("Equal", 35, 8),
    Sketcher.Constraint("Equal", 19, 10),
    Sketcher.Constraint("Equal", 47, 37),
    Sketcher.Constraint("Radius", 36, 13.0),
    Sketcher.Constraint("DistanceY", 30, 1, 30, 2, 1.0),
    Sketcher.Constraint("DistanceX", 1, 2, 1, 1, 6.4),
    Sketcher.Constraint("DistanceX", 3, 2, 3, 1, 1.1),
    Sketcher.Constraint("DistanceX", 6, 2, 36, 1, 1.5),
    Sketcher.Constraint("DistanceX", 5, 2, 5, 1, 9.285746),
    Sketcher.Constraint("DistanceX", 7, 2, 7, 1, 6.244417),
])
pad2 = body.newObject("PartDesign::Pad", "Pad001")
pad2.Profile = sketch2
pad2.Length = 7.5

sketch3 = body.newObject("Sketcher::SketchObject", "Sketch002")
sketch3.AttachmentSupport = (doc.getObject("XZ_Plane"), [""])
sketch3.MapMode = "FlatFace"
sketch3.AttachmentOffset = App.Placement(App.Vector(0, 0, 4.3), App.Rotation())
sketch3.addGeometry([
    Part.LineSegment(App.Vector(-20, 10, 0), App.Vector(-20, 2, 0)),
    Part.LineSegment(App.Vector(-20, 2, 0), App.Vector(-14, 10, 0)),
    Part.LineSegment(App.Vector(-14, 10, 0), App.Vector(-20, 10, 0)),
], False)
sketch3.addConstraint([
    Sketcher.Constraint("Coincident", 0, 2, 1, 1),
    Sketcher.Constraint("Coincident", 1, 2, 2, 1),
    Sketcher.Constraint("Coincident", 2, 2, 0, 1),
    Sketcher.Constraint("Vertical", 0),
    Sketcher.Constraint("Horizontal", 2),
    Sketcher.Constraint("DistanceY", 0, 2, 0, 1, 7.5),
    Sketcher.Constraint("DistanceY", -1, 1, 0, 2, 2.2),
    Sketcher.Constraint("Distance", 1, 9.759239),
    Sketcher.Constraint("DistanceX", 0, 2, -1, 1, 19.830164),
])
pocket1 = body.newObject("PartDesign::Pocket", "Pocket")
pocket1.Profile = sketch3
pocket1.Type = "ThroughAll"

sketch4 = body.newObject("Sketcher::SketchObject", "Sketch003")
sketch4.AttachmentSupport = (doc.getObject("XZ_Plane"), [""])
sketch4.MapMode = "FlatFace"
sketch4.AttachmentOffset = App.Placement(App.Vector(0, 0, 4.3), App.Rotation())
sketch4.addGeometry([
    Part.LineSegment(App.Vector(14, 10, 0), App.Vector(20, 2, 0)),
    Part.LineSegment(App.Vector(20, 2, 0), App.Vector(20, 10, 0)),
    Part.LineSegment(App.Vector(20, 10, 0), App.Vector(14, 10, 0)),
], False)
sketch4.addConstraint([
    Sketcher.Constraint("Coincident", 0, 2, 1, 1),
    Sketcher.Constraint("Coincident", 1, 2, 2, 1),
    Sketcher.Constraint("Coincident", 2, 2, 0, 1),
    Sketcher.Constraint("Vertical", 1),
    Sketcher.Constraint("Horizontal", 2),
    Sketcher.Constraint("DistanceY", 1, 1, 1, 2, 7.5),
    Sketcher.Constraint("DistanceY", -1, 1, 0, 2, 2.2),
    Sketcher.Constraint("Distance", 0, 9.759239),
    Sketcher.Constraint("DistanceX", -1, 1, 0, 2, 19.830164),
])
pocket2 = body.newObject("PartDesign::Pocket", "Pocket001")
pocket2.Profile = sketch4
pocket2.Type = "ThroughAll"

sketch5 = body.newObject("Sketcher::SketchObject", "Sketch004")
sketch5.AttachmentSupport = (doc.getObject("YZ_Plane"), [""])
sketch5.MapMode = "FlatFace"
sketch5.AttachmentOffset = App.Placement(App.Vector(0, 0, -4.3), App.Rotation())
sketch5.addGeometry([
    Part.LineSegment(App.Vector(-14, 10, 0), App.Vector(-20, 2, 0)),
    Part.LineSegment(App.Vector(-20, 2, 0), App.Vector(-20, 10, 0)),
    Part.LineSegment(App.Vector(-20, 10, 0), App.Vector(-14, 10, 0)),
], False)
sketch5.addConstraint([
    Sketcher.Constraint("Coincident", 0, 2, 1, 1),
    Sketcher.Constraint("Coincident", 1, 2, 2, 1),
    Sketcher.Constraint("Coincident", 2, 2, 0, 1),
    Sketcher.Constraint("Vertical", 1),
    Sketcher.Constraint("Horizontal", 2),
    Sketcher.Constraint("DistanceY", 1, 1, 1, 2, 7.5),
    Sketcher.Constraint("DistanceY", -1, 1, 0, 2, 2.2),
    Sketcher.Constraint("Distance", 0, 9.759239),
    Sketcher.Constraint("DistanceX", 0, 2, -1, 1, 19.830164),
])
pocket3 = body.newObject("PartDesign::Pocket", "Pocket002")
pocket3.Profile = sketch5
pocket3.Type = "ThroughAll"
pocket3.Reversed = True

sketch6 = body.newObject("Sketcher::SketchObject", "Sketch005")
sketch6.AttachmentSupport = (doc.getObject("YZ_Plane"), [""])
sketch6.MapMode = "FlatFace"
sketch6.AttachmentOffset = App.Placement(App.Vector(0, 0, -4.3), App.Rotation())
sketch6.addGeometry([
    Part.LineSegment(App.Vector(20, 10, 0), App.Vector(20, 2, 0)),
    Part.LineSegment(App.Vector(20, 2, 0), App.Vector(14, 10, 0)),
    Part.LineSegment(App.Vector(14, 10, 0), App.Vector(20, 10, 0)),
], False)
sketch6.addConstraint([
    Sketcher.Constraint("Coincident", 0, 2, 1, 1),
    Sketcher.Constraint("Coincident", 1, 2, 2, 1),
    Sketcher.Constraint("Coincident", 2, 2, 0, 1),
    Sketcher.Constraint("Vertical", 0),
    Sketcher.Constraint("Horizontal", 2),
    Sketcher.Constraint("DistanceY", 0, 2, 0, 1, 7.5),
    Sketcher.Constraint("DistanceY", -1, 1, 0, 2, 2.2),
    Sketcher.Constraint("Distance", 1, 9.759239),
    Sketcher.Constraint("DistanceX", -1, 1, 0, 2, 19.830164),
])
pocket4 = body.newObject("PartDesign::Pocket", "Pocket003")
pocket4.Profile = sketch6
pocket4.Type = "ThroughAll"
pocket4.Reversed = True

sketch7 = body.newObject("Sketcher::SketchObject", "Sketch006")
sketch7.AttachmentSupport = (doc.getObject("XY_Plane"), [""])
sketch7.MapMode = "FlatFace"
sketch7.AttachmentOffset = App.Placement(App.Vector(0, 0, 9.7), App.Rotation())
sketch7.addGeometry([
    Part.LineSegment(App.Vector(-13.6, 13.6, 0), App.Vector(-13.6, -13.6, 0)),
    Part.LineSegment(App.Vector(-13.6, -13.6, 0), App.Vector(13.6, -13.6, 0)),
    Part.LineSegment(App.Vector(13.6, -13.6, 0), App.Vector(13.6, 13.6, 0)),
    Part.LineSegment(App.Vector(13.6, 13.6, 0), App.Vector(-13.6, 13.6, 0)),
    Part.Circle(App.Vector(-7.8, -7.8, 0), App.Vector(0, 0, 1), 1.6),
    Part.Circle(App.Vector(7.8, -7.8, 0), App.Vector(0, 0, 1), 1.6),
    Part.Circle(App.Vector(-7.8, 7.8, 0), App.Vector(0, 0, 1), 1.6),
    Part.Circle(App.Vector(7.8, 7.8, 0), App.Vector(0, 0, 1), 1.6),
], False)
sketch7.addConstraint([
    Sketcher.Constraint("Coincident", 0, 2, 1, 1),
    Sketcher.Constraint("Coincident", 1, 2, 2, 1),
    Sketcher.Constraint("Coincident", 2, 2, 3, 1),
    Sketcher.Constraint("Coincident", 3, 2, 0, 1),
    Sketcher.Constraint("Vertical", 0),
    Sketcher.Constraint("Horizontal", 1),
    Sketcher.Constraint("Vertical", 2),
    Sketcher.Constraint("Horizontal", 3),
    Sketcher.Constraint("Equal", 4, 5),
    Sketcher.Constraint("Equal", 5, 6),
    Sketcher.Constraint("Equal", 6, 7),
    Sketcher.Constraint("Symmetric", 5, 3, 6, 3, -1, 1),
    Sketcher.Constraint("Symmetric", 4, 3, 7, 3, -1, 1),
    Sketcher.Constraint("Symmetric", 0, 2, 2, 2, -1, 1),
    Sketcher.Constraint("Symmetric", 4, 3, 5, 3, -2),
    Sketcher.Constraint("Equal", 3, 0),
    Sketcher.Constraint("Diameter", 4, 3.1),
    Sketcher.Constraint("DistanceX", 1, 1, 1, 2, 27.171492),
    Sketcher.Constraint("DistanceX", 4, 3, -1, 1, 7.81353),
    Sketcher.Constraint("DistanceY", 4, 3, -1, 1, 7.81353),
])
pad3 = body.newObject("PartDesign::Pad", "Pad002")
pad3.Profile = sketch7
pad3.Length = 2.2

doc.recompute()
